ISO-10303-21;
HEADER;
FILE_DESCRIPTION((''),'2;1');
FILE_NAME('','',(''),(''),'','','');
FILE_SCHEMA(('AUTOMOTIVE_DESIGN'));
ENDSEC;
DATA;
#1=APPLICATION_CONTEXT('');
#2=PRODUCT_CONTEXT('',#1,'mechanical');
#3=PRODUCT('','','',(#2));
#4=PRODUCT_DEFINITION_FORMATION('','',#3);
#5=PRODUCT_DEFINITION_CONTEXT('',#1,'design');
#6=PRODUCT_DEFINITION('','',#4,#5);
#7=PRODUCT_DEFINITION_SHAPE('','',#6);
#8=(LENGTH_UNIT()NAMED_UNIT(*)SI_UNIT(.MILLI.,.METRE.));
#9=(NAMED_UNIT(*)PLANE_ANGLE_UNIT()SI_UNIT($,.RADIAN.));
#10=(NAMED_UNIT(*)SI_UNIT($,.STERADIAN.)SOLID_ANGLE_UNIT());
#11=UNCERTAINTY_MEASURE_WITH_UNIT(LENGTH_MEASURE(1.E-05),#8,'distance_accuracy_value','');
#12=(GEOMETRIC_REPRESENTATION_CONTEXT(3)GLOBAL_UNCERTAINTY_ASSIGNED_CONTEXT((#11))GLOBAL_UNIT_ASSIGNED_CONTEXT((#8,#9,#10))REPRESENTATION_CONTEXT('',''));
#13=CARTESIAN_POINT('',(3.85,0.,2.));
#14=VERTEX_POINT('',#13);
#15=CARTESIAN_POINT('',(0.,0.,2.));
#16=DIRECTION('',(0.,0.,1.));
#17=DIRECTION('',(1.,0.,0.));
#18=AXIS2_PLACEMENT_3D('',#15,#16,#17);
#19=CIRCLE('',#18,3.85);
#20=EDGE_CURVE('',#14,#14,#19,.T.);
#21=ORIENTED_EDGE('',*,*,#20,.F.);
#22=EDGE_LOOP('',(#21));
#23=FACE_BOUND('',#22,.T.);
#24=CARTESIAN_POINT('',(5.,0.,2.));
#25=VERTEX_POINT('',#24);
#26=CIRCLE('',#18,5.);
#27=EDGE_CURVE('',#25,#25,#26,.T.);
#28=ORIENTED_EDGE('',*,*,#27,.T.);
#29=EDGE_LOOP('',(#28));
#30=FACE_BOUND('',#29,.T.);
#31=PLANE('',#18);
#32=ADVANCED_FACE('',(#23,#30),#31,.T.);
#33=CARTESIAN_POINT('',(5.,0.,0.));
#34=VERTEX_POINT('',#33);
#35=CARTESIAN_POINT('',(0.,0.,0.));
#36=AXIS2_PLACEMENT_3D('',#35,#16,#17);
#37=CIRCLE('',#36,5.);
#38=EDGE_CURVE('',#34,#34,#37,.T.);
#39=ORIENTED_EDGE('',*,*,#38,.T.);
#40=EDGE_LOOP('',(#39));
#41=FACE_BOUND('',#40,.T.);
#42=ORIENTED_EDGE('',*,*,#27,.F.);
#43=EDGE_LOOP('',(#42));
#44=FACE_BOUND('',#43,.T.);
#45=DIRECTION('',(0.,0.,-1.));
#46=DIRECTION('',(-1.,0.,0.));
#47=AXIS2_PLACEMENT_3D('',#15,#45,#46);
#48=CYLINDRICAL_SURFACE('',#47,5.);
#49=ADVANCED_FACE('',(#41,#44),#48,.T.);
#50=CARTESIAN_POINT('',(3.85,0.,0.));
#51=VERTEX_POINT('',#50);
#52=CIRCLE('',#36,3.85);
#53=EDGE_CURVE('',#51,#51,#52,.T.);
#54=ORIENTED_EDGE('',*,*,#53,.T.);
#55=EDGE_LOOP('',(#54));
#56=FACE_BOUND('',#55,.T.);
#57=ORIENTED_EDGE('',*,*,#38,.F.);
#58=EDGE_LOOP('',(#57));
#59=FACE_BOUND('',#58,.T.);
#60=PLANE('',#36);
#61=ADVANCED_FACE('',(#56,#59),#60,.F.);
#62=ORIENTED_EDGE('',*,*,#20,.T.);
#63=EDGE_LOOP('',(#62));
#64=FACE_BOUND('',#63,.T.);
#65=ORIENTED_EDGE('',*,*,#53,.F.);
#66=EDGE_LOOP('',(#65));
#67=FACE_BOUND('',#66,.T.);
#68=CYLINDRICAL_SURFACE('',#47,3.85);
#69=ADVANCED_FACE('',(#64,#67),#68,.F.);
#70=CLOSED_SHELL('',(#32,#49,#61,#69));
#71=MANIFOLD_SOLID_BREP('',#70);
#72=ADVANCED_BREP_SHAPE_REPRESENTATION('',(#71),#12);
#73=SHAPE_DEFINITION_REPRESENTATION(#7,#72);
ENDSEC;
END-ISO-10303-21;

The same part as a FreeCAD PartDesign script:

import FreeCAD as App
import Part
import Sketcher

doc = App.newDocument("Part")
params = doc.addObject("Spreadsheet::Sheet", "Params")
for row, (alias, value) in enumerate([
    ("sketch1_diameter", "10 mm"),
    ("sketch1_diameter2", "7.7 mm"),
    ("pad1_length", "2 mm"),
], start=1):
    params.set(f"A{row}", alias)
    params.set(f"B{row}", "=" + value)
    params.setAlias(f"B{row}", alias)

body = doc.addObject("PartDesign::Body", "Body")

sketch1 = doc.addObject("Sketcher::SketchObject", "Sketch")
body.addObject(sketch1)
sketch1.AttachmentSupport = (doc.XY_Plane, [""])
sketch1.MapMode = "FlatFace"
sketch1.addGeometry([
    Part.Circle(App.Vector(0, 0, 0), App.Vector(0, 0, 1), 5),
    Part.Circle(App.Vector(0, 0, 0), App.Vector(0, 0, 1), 3.9),
], False)
sketch1.addConstraint([
    Sketcher.Constraint("Coincident", 0, 3, -1, 1),
    Sketcher.Constraint("Coincident", 1, 3, -1, 1),
    Sketcher.Constraint("Diameter", 0, 10.0),
    Sketcher.Constraint("Diameter", 1, 7.7),
])
sketch1.setExpression("Constraints[2]", "Params.sketch1_diameter")
sketch1.setExpression("Constraints[3]", "Params.sketch1_diameter2")
pad1 = doc.addObject("PartDesign::Pad", "Pad")
body.addObject(pad1)
pad1.Profile = sketch1
pad1.setExpression("Length", "Params.pad1_length")

doc.recompute()
